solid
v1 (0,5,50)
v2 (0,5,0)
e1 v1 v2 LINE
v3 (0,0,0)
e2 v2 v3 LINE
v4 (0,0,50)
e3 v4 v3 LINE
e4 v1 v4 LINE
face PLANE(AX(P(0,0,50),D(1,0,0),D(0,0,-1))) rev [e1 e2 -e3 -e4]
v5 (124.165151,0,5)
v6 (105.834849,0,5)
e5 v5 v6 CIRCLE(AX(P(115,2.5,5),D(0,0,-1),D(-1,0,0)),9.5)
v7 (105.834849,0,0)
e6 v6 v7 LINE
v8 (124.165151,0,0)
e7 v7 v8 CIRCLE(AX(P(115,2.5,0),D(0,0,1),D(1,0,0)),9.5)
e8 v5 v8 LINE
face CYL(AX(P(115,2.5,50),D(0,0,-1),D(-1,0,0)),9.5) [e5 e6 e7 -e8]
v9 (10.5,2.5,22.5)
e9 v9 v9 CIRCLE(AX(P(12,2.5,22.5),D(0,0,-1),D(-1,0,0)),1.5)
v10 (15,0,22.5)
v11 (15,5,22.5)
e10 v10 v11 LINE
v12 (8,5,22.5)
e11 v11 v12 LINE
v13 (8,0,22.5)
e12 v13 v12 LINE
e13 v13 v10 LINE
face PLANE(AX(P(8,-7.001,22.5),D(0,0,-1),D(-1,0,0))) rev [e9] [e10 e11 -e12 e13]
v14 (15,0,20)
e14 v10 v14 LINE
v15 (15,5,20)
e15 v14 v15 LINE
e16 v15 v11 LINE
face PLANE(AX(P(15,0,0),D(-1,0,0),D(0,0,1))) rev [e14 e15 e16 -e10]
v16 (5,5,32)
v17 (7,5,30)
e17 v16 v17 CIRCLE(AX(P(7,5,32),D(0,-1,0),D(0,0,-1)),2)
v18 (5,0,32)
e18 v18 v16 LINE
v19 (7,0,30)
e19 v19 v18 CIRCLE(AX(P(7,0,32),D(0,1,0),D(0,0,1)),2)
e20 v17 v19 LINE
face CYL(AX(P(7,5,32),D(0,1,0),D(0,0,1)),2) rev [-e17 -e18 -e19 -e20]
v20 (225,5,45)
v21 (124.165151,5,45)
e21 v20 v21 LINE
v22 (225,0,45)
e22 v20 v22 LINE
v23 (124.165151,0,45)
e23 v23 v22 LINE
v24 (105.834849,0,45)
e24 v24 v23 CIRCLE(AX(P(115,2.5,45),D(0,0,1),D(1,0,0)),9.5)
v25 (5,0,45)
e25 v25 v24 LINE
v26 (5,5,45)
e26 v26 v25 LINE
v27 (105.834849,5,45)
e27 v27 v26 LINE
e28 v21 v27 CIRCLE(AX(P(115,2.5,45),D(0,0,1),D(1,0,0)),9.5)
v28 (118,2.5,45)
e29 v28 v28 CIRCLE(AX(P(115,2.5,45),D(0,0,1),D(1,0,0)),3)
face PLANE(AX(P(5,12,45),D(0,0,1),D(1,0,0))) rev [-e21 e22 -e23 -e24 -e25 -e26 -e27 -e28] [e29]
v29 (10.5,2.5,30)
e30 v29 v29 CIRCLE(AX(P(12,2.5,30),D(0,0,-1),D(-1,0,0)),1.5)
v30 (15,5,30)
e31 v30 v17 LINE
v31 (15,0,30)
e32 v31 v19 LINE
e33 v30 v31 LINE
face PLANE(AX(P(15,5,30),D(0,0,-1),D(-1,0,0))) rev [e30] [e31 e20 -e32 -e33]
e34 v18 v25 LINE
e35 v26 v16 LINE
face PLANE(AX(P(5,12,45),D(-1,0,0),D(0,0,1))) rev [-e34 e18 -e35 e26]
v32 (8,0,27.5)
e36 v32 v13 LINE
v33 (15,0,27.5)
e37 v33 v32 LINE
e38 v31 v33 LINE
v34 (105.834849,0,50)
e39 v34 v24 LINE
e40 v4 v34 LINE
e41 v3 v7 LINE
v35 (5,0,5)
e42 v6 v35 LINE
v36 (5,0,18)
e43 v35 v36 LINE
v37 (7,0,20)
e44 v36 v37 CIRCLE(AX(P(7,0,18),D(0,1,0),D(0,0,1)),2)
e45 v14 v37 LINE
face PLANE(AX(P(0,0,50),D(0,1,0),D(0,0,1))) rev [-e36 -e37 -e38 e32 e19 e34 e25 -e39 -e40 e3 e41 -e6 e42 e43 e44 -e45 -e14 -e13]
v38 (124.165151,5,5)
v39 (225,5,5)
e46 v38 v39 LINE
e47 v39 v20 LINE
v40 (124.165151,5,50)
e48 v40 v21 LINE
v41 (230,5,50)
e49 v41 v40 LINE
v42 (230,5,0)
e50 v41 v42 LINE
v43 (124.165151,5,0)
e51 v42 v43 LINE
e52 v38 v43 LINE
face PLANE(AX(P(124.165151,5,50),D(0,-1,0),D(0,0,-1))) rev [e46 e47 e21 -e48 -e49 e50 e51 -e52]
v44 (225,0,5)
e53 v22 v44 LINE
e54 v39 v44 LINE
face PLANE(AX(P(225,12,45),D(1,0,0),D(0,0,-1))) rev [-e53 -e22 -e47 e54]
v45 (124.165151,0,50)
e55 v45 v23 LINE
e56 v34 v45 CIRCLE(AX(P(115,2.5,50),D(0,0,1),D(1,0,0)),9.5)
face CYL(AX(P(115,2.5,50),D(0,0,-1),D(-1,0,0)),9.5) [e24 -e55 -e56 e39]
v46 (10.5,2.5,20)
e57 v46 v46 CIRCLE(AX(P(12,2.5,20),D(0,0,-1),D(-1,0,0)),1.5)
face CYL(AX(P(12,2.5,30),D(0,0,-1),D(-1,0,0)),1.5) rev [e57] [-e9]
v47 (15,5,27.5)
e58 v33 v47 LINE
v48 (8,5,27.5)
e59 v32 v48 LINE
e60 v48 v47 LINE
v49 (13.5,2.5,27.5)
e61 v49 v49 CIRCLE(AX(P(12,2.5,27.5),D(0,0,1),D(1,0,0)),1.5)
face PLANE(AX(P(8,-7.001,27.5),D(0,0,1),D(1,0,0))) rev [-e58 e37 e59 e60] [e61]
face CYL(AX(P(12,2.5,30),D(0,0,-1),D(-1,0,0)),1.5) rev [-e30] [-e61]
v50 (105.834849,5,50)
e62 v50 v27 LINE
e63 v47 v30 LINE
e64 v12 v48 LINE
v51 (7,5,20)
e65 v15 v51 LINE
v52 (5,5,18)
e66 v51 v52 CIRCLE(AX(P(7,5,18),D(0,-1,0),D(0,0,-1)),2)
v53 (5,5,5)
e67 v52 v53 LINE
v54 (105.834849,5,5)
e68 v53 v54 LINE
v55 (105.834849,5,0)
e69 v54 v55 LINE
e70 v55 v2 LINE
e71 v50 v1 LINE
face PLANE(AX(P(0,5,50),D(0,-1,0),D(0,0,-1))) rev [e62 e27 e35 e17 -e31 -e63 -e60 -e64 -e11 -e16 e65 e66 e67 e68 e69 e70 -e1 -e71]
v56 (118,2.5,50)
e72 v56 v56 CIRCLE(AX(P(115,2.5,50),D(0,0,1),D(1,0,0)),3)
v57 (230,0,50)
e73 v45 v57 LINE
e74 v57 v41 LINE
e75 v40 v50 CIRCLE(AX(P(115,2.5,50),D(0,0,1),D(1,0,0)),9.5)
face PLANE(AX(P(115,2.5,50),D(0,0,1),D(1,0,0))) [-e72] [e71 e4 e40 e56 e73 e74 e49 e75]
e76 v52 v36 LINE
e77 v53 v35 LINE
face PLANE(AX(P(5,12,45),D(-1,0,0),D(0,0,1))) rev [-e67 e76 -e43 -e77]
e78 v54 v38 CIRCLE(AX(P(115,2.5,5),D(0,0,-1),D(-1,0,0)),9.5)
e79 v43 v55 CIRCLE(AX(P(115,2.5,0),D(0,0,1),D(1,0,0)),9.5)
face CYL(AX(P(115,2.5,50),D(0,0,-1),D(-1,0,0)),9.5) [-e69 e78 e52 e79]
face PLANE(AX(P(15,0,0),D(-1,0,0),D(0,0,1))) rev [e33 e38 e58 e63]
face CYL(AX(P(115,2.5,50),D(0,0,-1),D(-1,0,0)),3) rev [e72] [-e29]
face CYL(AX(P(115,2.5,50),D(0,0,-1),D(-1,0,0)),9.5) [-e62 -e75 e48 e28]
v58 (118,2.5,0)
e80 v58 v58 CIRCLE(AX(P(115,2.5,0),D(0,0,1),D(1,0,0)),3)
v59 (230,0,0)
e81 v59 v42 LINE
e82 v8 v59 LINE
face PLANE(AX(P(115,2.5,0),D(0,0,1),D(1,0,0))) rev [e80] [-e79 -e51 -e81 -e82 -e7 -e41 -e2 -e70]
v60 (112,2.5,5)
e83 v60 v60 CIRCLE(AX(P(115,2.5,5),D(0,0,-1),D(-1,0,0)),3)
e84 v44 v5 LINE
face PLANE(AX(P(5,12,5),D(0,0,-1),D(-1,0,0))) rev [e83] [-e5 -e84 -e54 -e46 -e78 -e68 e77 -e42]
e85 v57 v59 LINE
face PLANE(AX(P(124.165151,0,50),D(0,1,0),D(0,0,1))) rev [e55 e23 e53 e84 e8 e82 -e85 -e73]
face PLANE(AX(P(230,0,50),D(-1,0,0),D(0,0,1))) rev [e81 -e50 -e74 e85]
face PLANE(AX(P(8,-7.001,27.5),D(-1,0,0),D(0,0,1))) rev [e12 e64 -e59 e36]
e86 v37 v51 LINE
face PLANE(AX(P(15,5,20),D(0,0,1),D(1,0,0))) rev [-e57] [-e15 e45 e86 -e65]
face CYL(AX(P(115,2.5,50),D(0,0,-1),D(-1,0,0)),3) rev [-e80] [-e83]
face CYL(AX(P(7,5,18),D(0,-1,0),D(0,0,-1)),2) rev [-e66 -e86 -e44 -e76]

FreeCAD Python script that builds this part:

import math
import FreeCAD as App
import Part
import Sketcher
from FreeCAD import Vector
Q = App.Units.Quantity


def edges_at(feature, points):
    """Names of the edges that pass closest to the given points."""
    edges = feature.Shape.Edges
    near = lambda p: min(range(len(edges)), key=lambda i: edges[i].distToShape(Part.Vertex(*p))[0])
    return sorted({f"Edge{near(p) + 1}" for p in points})

doc = App.newDocument("Part")
body = doc.addObject("PartDesign::Body", "Body")

# Sketch on XY plane
sketch1 = body.newObject("Sketcher::SketchObject", "Sketch")
sketch1.AttachmentSupport = (doc.getObject("XY_Plane"), [""])
sketch1.MapMode = "FlatFace"
sketch1.addGeometry(Part.LineSegment(Vector(124.165151, 0, 0), Vector(230, 0, 0)), False)
sketch1.addGeometry(Part.LineSegment(Vector(230, 0, 0), Vector(230, 5, 0)), False)
sketch1.addGeometry(Part.LineSegment(Vector(230, 5, 0), Vector(124.165151, 5, 0)), False)
sketch1.addGeometry(Part.ArcOfCircle(Part.Circle(Vector(115, 2.5, 0), Vector(0, 0, 1), 9.5), math.radians(15.257523), math.radians(164.742477)), False)
sketch1.addGeometry(Part.LineSegment(Vector(105.834849, 5, 0), Vector(0, 5, 0)), False)
sketch1.addGeometry(Part.LineSegment(Vector(0, 5, 0), Vector(0, 0, 0)), False)
sketch1.addGeometry(Part.LineSegment(Vector(0, 0, 0), Vector(105.834849, 0, 0)), False)
sketch1.addGeometry(Part.ArcOfCircle(Part.Circle(Vector(115, 2.5, 0), Vector(0, 0, 1), 9.5), math.radians(-164.742477), math.radians(-15.257523)), False)
sketch1.addGeometry(Part.Circle(Vector(115, 2.5, 0), Vector(0, 0, 1), 3), False)
sketch1.addConstraint(Sketcher.Constraint("Coincident", 0, 2, 1, 1))
sketch1.addConstraint(Sketcher.Constraint("Coincident", 1, 2, 2, 1))
sketch1.addConstraint(Sketcher.Constraint("Coincident", 2, 2, 3, 1))
sketch1.addConstraint(Sketcher.Constraint("Coincident", 3, 2, 4, 1))
sketch1.addConstraint(Sketcher.Constraint("Coincident", 4, 2, 5, 1))
sketch1.addConstraint(Sketcher.Constraint("Coincident", 5, 2, 6, 1))
sketch1.addConstraint(Sketcher.Constraint("Coincident", 6, 2, 7, 1))
sketch1.addConstraint(Sketcher.Constraint("Coincident", 7, 2, 0, 1))
sketch1.addConstraint(Sketcher.Constraint("Horizontal", 0))
sketch1.addConstraint(Sketcher.Constraint("Vertical", 1))
sketch1.addConstraint(Sketcher.Constraint("Horizontal", 2))
sketch1.addConstraint(Sketcher.Constraint("Horizontal", 4))
sketch1.addConstraint(Sketcher.Constraint("Vertical", 5))
sketch1.addConstraint(Sketcher.Constraint("Horizontal", 6))
sketch1.addConstraint(Sketcher.Constraint("Coincident", 5, 2, -1, 1))
sketch1.addConstraint(Sketcher.Constraint("Coincident", 7, 3, 3, 3))
sketch1.addConstraint(Sketcher.Constraint("Coincident", 8, 3, 3, 3))
sketch1.addConstraint(Sketcher.Constraint("Equal", 3, 7))
sketch1.addConstraint(Sketcher.Constraint("PointOnObject", 0, 2, -1))
sketch1.addConstraint(Sketcher.Constraint("Horizontal", 2, 2, 3, 2))
sketch1.addConstraint(Sketcher.Constraint("Vertical", 3, 2, 6, 2))
sketch1.addConstraint(Sketcher.Constraint("Equal", 2, 4))
sketch1.addConstraint(Sketcher.Constraint("Diameter", 8, Q("6 mm")))
sketch1.addConstraint(Sketcher.Constraint("Radius", 3, Q("9.5 mm")))
sketch1.addConstraint(Sketcher.Constraint("DistanceY", 1, 1, 1, 2, Q("5 mm")))
sketch1.addConstraint(Sketcher.Constraint("DistanceX", -1, 1, 3, 3, Q("115 mm")))
pad1 = body.newObject("PartDesign::Pad", "Pad")
pad1.Profile = sketch1
pad1.Length = 50

# Sketch on XZ plane
sketch2 = body.newObject("Sketcher::SketchObject", "Sketch001")
sketch2.AttachmentSupport = (doc.getObject("XZ_Plane"), [""])
sketch2.MapMode = "FlatFace"
sketch2.addGeometry(Part.LineSegment(Vector(225, 5, 0), Vector(225, 45, 0)), False)
sketch2.addGeometry(Part.LineSegment(Vector(225, 45, 0), Vector(5, 45, 0)), False)
sketch2.addGeometry(Part.LineSegment(Vector(5, 45, 0), Vector(5, 5, 0)), False)
sketch2.addGeometry(Part.LineSegment(Vector(5, 5, 0), Vector(225, 5, 0)), False)
sketch2.addConstraint(Sketcher.Constraint("Coincident", 0, 2, 1, 1))
sketch2.addConstraint(Sketcher.Constraint("Coincident", 1, 2, 2, 1))
sketch2.addConstraint(Sketcher.Constraint("Coincident", 2, 2, 3, 1))
sketch2.addConstraint(Sketcher.Constraint("Coincident", 3, 2, 0, 1))
sketch2.addConstraint(Sketcher.Constraint("Vertical", 0))
sketch2.addConstraint(Sketcher.Constraint("Horizontal", 1))
sketch2.addConstraint(Sketcher.Constraint("Vertical", 2))
sketch2.addConstraint(Sketcher.Constraint("Horizontal", 3))
sketch2.addConstraint(Sketcher.Constraint("DistanceX", 1, 2, 1, 1, Q("220 mm")))
sketch2.addConstraint(Sketcher.Constraint("DistanceY", 0, 1, 0, 2, Q("40 mm")))
sketch2.addConstraint(Sketcher.Constraint("DistanceX", -1, 1, 0, 2, Q("225 mm")))
sketch2.addConstraint(Sketcher.Constraint("DistanceY", -1, 1, 0, 2, Q("45 mm")))
pocket1 = body.newObject("PartDesign::Pocket", "Pocket")
pocket1.Profile = sketch2
pocket1.Type = "ThroughAll"
pocket1.Midplane = True

# Sketch on YZ plane
sketch3 = body.newObject("Sketcher::SketchObject", "Sketch002")
sketch3.AttachmentSupport = (doc.getObject("YZ_Plane"), [""])
sketch3.MapMode = "FlatFace"
sketch3.AttachmentOffset = App.Placement(Vector(0, 0, 5), App.Rotation())
sketch3.addGeometry(Part.LineSegment(Vector(5, 30, 0), Vector(0, 30, 0)), False)
sketch3.addGeometry(Part.LineSegment(Vector(0, 30, 0), Vector(0, 20, 0)), False)
sketch3.addGeometry(Part.LineSegment(Vector(0, 20, 0), Vector(5, 20, 0)), False)
sketch3.addGeometry(Part.LineSegment(Vector(5, 20, 0), Vector(5, 30, 0)), False)
sketch3.addConstraint(Sketcher.Constraint("Coincident", 0, 2, 1, 1))
sketch3.addConstraint(Sketcher.Constraint("Coincident", 1, 2, 2, 1))
sketch3.addConstraint(Sketcher.Constraint("Coincident", 2, 2, 3, 1))
sketch3.addConstraint(Sketcher.Constraint("Coincident", 3, 2, 0, 1))
sketch3.addConstraint(Sketcher.Constraint("Horizontal", 0))
sketch3.addConstraint(Sketcher.Constraint("Vertical", 1))
sketch3.addConstraint(Sketcher.Constraint("Horizontal", 2))
sketch3.addConstraint(Sketcher.Constraint("Vertical", 3))
sketch3.addConstraint(Sketcher.Constraint("PointOnObject", 0, 2, -2))
sketch3.addConstraint(Sketcher.Constraint("DistanceX", 0, 2, 0, 1, Q("5 mm")))
sketch3.addConstraint(Sketcher.Constraint("DistanceY", 1, 2, 1, 1, Q("10 mm")))
sketch3.addConstraint(Sketcher.Constraint("DistanceY", -1, 1, 0, 2, Q("30 mm")))
pad2 = body.newObject("PartDesign::Pad", "Pad001")
pad2.Profile = sketch3
pad2.Length = 10

# Sketch on XZ plane
sketch4 = body.newObject("Sketcher::SketchObject", "Sketch003")
sketch4.AttachmentSupport = (doc.getObject("XZ_Plane"), [""])
sketch4.MapMode = "FlatFace"
sketch4.AttachmentOffset = App.Placement(Vector(0, 0, -5), App.Rotation())
sketch4.addGeometry(Part.LineSegment(Vector(8, 22.5, 0), Vector(8, 27.5, 0)), False)
sketch4.addGeometry(Part.LineSegment(Vector(8, 27.5, 0), Vector(15, 27.5, 0)), False)
sketch4.addGeometry(Part.LineSegment(Vector(15, 27.5, 0), Vector(15, 22.5, 0)), False)
sketch4.addGeometry(Part.LineSegment(Vector(15, 22.5, 0), Vector(8, 22.5, 0)), False)
sketch4.addConstraint(Sketcher.Constraint("Coincident", 0, 2, 1, 1))
sketch4.addConstraint(Sketcher.Constraint("Coincident", 1, 2, 2, 1))
sketch4.addConstraint(Sketcher.Constraint("Coincident", 2, 2, 3, 1))
sketch4.addConstraint(Sketcher.Constraint("Coincident", 3, 2, 0, 1))
sketch4.addConstraint(Sketcher.Constraint("Vertical", 0))
sketch4.addConstraint(Sketcher.Constraint("Horizontal", 1))
sketch4.addConstraint(Sketcher.Constraint("Vertical", 2))
sketch4.addConstraint(Sketcher.Constraint("Horizontal", 3))
sketch4.addConstraint(Sketcher.Constraint("DistanceX", 1, 1, 1, 2, Q("7 mm")))
sketch4.addConstraint(Sketcher.Constraint("DistanceY", 0, 1, 0, 2, Q("5 mm")))
sketch4.addConstraint(Sketcher.Constraint("DistanceX", -1, 1, 0, 2, Q("8 mm")))
sketch4.addConstraint(Sketcher.Constraint("DistanceY", -1, 1, 0, 2, Q("27.5 mm")))
pocket2 = body.newObject("PartDesign::Pocket", "Pocket001")
pocket2.Profile = sketch4
pocket2.Type = "UpToFirst"
pocket2.Reversed = True
doc.recompute()

fillet = body.newObject("PartDesign::Fillet", "Fillet")
fillet.Base = (pocket2, edges_at(pocket2, [(5, 2.5, 30), (5, 2.5, 20)]))
fillet.Radius = 2

# Sketch on XY plane
sketch5 = body.newObject("Sketcher::SketchObject", "Sketch004")
sketch5.AttachmentSupport = (doc.getObject("XY_Plane"), [""])
sketch5.MapMode = "FlatFace"
sketch5.AttachmentOffset = App.Placement(Vector(0, 0, 20), App.Rotation())
sketch5.addGeometry(Part.Circle(Vector(12, 2.5, 0), Vector(0, 0, 1), 1.5), False)
sketch5.addConstraint(Sketcher.Constraint("Diameter", 0, Q("3 mm")))
sketch5.addConstraint(Sketcher.Constraint("DistanceX", -1, 1, 0, 3, Q("12 mm")))
sketch5.addConstraint(Sketcher.Constraint("DistanceY", -1, 1, 0, 3, Q("2.5 mm")))
pocket3 = body.newObject("PartDesign::Pocket", "Pocket002")
pocket3.Profile = sketch5
pocket3.Length = 10
pocket3.Reversed = True

doc.recompute()
